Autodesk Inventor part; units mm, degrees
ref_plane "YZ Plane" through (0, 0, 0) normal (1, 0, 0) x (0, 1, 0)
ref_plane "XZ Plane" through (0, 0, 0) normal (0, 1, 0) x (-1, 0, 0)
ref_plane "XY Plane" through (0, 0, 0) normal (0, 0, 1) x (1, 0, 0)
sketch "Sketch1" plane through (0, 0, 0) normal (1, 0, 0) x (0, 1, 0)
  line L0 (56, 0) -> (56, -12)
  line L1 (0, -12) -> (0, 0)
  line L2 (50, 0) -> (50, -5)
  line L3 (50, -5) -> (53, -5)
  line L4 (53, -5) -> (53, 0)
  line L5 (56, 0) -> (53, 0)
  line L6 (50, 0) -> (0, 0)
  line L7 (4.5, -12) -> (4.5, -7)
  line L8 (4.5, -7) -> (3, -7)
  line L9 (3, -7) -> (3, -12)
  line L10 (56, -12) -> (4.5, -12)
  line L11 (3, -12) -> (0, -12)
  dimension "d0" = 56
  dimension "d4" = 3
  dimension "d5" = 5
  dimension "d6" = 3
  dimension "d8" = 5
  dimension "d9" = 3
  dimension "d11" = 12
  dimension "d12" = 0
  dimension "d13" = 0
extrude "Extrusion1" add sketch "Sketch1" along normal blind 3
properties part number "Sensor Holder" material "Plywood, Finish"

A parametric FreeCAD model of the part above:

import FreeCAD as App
import Part
import Sketcher

V = App.Vector

doc = App.newDocument("Part")
params = doc.addObject("Spreadsheet::Sheet", "Params")
for row, (alias, value) in enumerate([
    ("sketch1_width", "3 mm"),
    ("sketch1_height", "12 mm"),
    ("sketch1_height2", "5 mm"),
    ("sketch1_width2", "1.5 mm"),
    ("pad1_length", "3 mm"),
], start=1):
    params.set(f"A{row}", alias)
    params.set(f"B{row}", "=" + value)
    params.setAlias(f"B{row}", alias)

body = doc.addObject("PartDesign::Body", "Body")

# Sketch on YZ plane
sketch1 = doc.addObject("Sketcher::SketchObject", "Sketch")
body.addObject(sketch1)
sketch1.AttachmentSupport = (doc.YZ_Plane, [""])
sketch1.MapMode = "FlatFace"
sketch1.addGeometry(Part.LineSegment(V(56, -12, 0), V(56, 0, 0)), False)
sketch1.addGeometry(Part.LineSegment(V(56, 0, 0), V(53, 0, 0)), False)
sketch1.addGeometry(Part.LineSegment(V(53, 0, 0), V(53, -5, 0)), False)
sketch1.addGeometry(Part.LineSegment(V(53, -5, 0), V(50, -5, 0)), False)
sketch1.addGeometry(Part.LineSegment(V(50, -5, 0), V(50, 0, 0)), False)
sketch1.addGeometry(Part.LineSegment(V(50, 0, 0), V(0, 0, 0)), False)
sketch1.addGeometry(Part.LineSegment(V(0, 0, 0), V(0, -12, 0)), False)
sketch1.addGeometry(Part.LineSegment(V(0, -12, 0), V(3, -12, 0)), False)
sketch1.addGeometry(Part.LineSegment(V(3, -12, 0), V(3, -7, 0)), False)
sketch1.addGeometry(Part.LineSegment(V(3, -7, 0), V(4.5, -7, 0)), False)
sketch1.addGeometry(Part.LineSegment(V(4.5, -7, 0), V(4.5, -12, 0)), False)
sketch1.addGeometry(Part.LineSegment(V(4.5, -12, 0), V(56, -12, 0)), False)
sketch1.addConstraint(Sketcher.Constraint("Coincident", 0, 2, 1, 1))
sketch1.addConstraint(Sketcher.Constraint("Coincident", 1, 2, 2, 1))
sketch1.addConstraint(Sketcher.Constraint("Coincident", 2, 2, 3, 1))
sketch1.addConstraint(Sketcher.Constraint("Coincident", 3, 2, 4, 1))
sketch1.addConstraint(Sketcher.Constraint("Coincident", 4, 2, 5, 1))
sketch1.addConstraint(Sketcher.Constraint("Coincident", 5, 2, 6, 1))
sketch1.addConstraint(Sketcher.Constraint("Coincident", 6, 2, 7, 1))
sketch1.addConstraint(Sketcher.Constraint("Coincident", 7, 2, 8, 1))
sketch1.addConstraint(Sketcher.Constraint("Coincident", 8, 2, 9, 1))
sketch1.addConstraint(Sketcher.Constraint("Coincident", 9, 2, 10, 1))
sketch1.addConstraint(Sketcher.Constraint("Coincident", 10, 2, 11, 1))
sketch1.addConstraint(Sketcher.Constraint("Coincident", 11, 2, 0, 1))
sketch1.addConstraint(Sketcher.Constraint("Vertical", 0))
sketch1.addConstraint(Sketcher.Constraint("Horizontal", 1))
sketch1.addConstraint(Sketcher.Constraint("Vertical", 2))
sketch1.addConstraint(Sketcher.Constraint("Horizontal", 3))
sketch1.addConstraint(Sketcher.Constraint("Vertical", 4))
sketch1.addConstraint(Sketcher.Constraint("Horizontal", 5))
sketch1.addConstraint(Sketcher.Constraint("Vertical", 6))
sketch1.addConstraint(Sketcher.Constraint("Horizontal", 7))
sketch1.addConstraint(Sketcher.Constraint("Vertical", 8))
sketch1.addConstraint(Sketcher.Constraint("Horizontal", 9))
sketch1.addConstraint(Sketcher.Constraint("Vertical", 10))
sketch1.addConstraint(Sketcher.Constraint("Horizontal", 11))
sketch1.addConstraint(Sketcher.Constraint("Coincident", 5, 2, -1, 1))
sketch1.addConstraint(Sketcher.Constraint("PointOnObject", 0, 2, -1))
sketch1.addConstraint(Sketcher.Constraint("Horizontal", 7, 2, 10, 2))
sketch1.addConstraint(Sketcher.Constraint("Equal", 1, 3))
sketch1.addConstraint(Sketcher.Constraint("Equal", 3, 7))
sketch1.addConstraint(Sketcher.Constraint("Equal", 4, 8))
sketch1.addConstraint(Sketcher.Constraint("DistanceX", 1, 2, 1, 1, 3.0))
sketch1.addConstraint(Sketcher.Constraint("DistanceY", 0, 1, 0, 2, 12.0))
sketch1.addConstraint(Sketcher.Constraint("DistanceY", 2, 2, 2, 1, 5.0))
sketch1.addConstraint(Sketcher.Constraint("DistanceX", -1, 1, 0, 2, 56.0))
sketch1.addConstraint(Sketcher.Constraint("DistanceX", 9, 1, 9, 2, 1.5))
sketch1.setExpression("Constraints[30]", "Params.sketch1_width")
sketch1.setExpression("Constraints[31]", "Params.sketch1_height")
sketch1.setExpression("Constraints[32]", "Params.sketch1_height2")
sketch1.setExpression("Constraints[34]", "Params.sketch1_width2")
pad1 = doc.addObject("PartDesign::Pad", "Pad")
body.addObject(pad1)
pad1.Profile = sketch1
pad1.setExpression("Length", "Params.pad1_length")

doc.recompute()
